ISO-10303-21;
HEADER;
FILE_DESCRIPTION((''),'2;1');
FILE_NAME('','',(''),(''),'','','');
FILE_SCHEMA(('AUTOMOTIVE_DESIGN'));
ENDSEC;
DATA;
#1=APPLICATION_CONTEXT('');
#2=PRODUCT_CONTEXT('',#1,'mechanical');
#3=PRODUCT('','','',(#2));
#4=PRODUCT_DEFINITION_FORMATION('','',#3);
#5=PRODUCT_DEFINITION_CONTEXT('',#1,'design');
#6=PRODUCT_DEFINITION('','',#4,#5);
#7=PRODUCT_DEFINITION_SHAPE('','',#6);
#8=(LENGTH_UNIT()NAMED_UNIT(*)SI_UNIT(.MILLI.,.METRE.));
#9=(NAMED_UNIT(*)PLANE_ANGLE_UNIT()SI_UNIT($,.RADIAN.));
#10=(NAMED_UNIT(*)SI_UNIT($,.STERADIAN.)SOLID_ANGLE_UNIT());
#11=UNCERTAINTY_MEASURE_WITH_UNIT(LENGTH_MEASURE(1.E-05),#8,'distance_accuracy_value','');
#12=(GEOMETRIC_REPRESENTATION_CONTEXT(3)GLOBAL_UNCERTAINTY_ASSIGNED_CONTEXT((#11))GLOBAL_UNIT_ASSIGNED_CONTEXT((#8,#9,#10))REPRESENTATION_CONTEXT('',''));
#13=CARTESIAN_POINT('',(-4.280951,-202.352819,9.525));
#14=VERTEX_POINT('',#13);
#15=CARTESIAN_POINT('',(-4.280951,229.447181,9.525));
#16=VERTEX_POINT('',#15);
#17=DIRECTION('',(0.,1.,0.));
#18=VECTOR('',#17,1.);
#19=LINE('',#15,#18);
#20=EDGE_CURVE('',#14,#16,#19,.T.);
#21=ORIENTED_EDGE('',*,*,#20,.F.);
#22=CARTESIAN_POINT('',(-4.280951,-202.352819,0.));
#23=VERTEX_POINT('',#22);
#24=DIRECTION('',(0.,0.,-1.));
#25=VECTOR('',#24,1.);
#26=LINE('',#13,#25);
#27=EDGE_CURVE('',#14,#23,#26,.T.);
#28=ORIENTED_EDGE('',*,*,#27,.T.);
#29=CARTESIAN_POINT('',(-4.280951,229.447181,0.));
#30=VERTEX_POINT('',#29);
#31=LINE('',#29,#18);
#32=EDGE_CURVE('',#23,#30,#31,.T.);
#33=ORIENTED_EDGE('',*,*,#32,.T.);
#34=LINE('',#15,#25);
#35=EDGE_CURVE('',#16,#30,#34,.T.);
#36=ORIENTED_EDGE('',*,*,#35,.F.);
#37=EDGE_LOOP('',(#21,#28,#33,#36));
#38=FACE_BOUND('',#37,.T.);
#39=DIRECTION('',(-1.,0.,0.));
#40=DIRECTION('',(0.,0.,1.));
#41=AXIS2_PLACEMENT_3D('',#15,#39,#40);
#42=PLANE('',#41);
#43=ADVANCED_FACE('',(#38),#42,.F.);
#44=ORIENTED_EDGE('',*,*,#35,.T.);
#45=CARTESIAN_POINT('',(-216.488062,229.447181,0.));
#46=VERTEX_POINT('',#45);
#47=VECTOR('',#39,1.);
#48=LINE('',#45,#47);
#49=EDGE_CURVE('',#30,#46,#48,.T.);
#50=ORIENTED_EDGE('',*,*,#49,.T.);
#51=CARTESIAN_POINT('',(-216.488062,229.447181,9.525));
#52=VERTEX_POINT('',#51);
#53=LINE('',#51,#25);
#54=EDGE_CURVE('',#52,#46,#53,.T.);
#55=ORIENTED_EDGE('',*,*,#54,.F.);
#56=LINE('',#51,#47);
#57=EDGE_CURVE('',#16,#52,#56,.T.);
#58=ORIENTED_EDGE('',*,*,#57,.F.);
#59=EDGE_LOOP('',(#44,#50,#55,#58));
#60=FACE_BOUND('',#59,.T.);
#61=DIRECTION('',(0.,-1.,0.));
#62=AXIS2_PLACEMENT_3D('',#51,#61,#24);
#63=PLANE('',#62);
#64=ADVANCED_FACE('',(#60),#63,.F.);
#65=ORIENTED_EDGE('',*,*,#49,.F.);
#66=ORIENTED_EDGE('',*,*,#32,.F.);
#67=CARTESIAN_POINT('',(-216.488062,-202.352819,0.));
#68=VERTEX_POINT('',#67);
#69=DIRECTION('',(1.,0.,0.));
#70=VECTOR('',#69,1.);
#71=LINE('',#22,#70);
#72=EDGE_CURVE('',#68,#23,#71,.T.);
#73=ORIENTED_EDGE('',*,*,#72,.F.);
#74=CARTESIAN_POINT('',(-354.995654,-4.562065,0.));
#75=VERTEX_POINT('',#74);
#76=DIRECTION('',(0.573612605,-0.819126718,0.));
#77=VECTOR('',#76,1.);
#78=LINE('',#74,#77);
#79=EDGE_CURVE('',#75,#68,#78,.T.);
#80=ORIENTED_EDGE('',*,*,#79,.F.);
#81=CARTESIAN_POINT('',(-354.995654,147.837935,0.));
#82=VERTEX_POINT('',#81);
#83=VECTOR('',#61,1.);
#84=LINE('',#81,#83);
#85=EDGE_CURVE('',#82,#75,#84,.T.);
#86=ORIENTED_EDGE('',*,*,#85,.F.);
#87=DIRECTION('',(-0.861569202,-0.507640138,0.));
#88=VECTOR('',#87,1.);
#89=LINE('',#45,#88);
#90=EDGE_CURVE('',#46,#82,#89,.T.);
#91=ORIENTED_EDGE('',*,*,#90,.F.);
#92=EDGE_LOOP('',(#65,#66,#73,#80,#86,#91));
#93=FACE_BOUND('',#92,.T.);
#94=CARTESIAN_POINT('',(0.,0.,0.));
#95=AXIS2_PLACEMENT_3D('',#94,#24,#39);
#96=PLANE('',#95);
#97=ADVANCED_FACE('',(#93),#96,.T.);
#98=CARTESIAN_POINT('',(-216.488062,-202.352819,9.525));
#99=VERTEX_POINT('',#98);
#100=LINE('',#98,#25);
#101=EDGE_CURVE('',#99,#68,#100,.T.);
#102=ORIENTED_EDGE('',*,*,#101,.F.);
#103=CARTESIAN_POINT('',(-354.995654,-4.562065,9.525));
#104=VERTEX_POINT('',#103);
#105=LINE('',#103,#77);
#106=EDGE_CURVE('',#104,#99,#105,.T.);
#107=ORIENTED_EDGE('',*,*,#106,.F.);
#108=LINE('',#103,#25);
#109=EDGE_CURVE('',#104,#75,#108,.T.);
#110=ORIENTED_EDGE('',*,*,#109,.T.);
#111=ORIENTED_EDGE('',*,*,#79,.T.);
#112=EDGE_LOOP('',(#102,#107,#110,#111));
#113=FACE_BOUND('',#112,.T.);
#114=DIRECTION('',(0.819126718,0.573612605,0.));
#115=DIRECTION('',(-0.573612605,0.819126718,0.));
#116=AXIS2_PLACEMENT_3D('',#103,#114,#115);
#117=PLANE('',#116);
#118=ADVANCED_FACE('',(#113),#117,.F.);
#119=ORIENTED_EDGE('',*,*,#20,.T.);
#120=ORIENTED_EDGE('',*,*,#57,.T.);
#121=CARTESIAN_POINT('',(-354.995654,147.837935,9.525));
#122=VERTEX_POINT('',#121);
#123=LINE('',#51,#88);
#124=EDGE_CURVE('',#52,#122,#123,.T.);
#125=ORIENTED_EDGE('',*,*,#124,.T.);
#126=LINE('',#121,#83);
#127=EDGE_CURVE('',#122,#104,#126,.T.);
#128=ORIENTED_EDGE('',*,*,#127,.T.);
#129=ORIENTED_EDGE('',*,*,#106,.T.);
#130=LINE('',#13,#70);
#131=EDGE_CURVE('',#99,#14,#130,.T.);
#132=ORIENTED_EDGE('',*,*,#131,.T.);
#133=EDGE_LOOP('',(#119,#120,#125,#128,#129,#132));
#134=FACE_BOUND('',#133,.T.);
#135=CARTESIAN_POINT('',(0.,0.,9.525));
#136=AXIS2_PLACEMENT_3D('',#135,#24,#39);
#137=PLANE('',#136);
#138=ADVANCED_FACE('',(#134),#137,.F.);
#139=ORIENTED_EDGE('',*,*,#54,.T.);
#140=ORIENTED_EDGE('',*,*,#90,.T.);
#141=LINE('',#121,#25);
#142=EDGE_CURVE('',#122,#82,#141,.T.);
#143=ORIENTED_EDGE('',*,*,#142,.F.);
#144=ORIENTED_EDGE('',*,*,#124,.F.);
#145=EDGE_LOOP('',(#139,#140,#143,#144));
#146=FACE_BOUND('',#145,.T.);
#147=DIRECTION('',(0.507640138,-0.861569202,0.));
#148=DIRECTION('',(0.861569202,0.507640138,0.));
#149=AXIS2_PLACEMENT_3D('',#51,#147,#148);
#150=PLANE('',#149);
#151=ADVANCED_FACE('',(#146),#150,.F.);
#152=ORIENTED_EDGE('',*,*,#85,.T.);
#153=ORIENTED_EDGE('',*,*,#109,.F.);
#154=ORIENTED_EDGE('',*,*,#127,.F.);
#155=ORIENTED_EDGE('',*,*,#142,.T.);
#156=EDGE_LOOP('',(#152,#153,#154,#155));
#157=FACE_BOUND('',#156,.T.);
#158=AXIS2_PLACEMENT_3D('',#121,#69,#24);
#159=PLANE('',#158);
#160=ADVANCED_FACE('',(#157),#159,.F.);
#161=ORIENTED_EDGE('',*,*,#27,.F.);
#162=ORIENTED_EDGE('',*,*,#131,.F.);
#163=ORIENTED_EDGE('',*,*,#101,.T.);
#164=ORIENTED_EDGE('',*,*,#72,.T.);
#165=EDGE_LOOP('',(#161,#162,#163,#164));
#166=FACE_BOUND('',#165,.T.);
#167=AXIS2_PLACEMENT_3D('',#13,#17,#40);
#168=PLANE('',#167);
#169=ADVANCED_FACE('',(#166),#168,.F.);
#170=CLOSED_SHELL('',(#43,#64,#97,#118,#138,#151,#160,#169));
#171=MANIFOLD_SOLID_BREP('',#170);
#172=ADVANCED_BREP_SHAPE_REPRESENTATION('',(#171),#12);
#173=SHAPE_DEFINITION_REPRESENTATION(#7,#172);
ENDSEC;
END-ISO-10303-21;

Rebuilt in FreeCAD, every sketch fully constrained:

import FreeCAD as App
import Part
import Sketcher
Q = App.Units.Quantity

doc = App.newDocument("Part")
body = doc.addObject("PartDesign::Body", "Body")

sketch1 = body.newObject("Sketcher::SketchObject", "Sketch")
sketch1.AttachmentSupport = (doc.getObject("XY_Plane"), [""])
sketch1.MapMode = "FlatFace"
sketch1.addGeometry([
    Part.LineSegment(App.Vector(-216.488062, -202.352819, 0), App.Vector(-4.280951, -202.352819, 0)),
    Part.LineSegment(App.Vector(-4.280951, -202.352819, 0), App.Vector(-4.280951, 229.447181, 0)),
    Part.LineSegment(App.Vector(-4.280951, 229.447181, 0), App.Vector(-216.488062, 229.447181, 0)),
    Part.LineSegment(App.Vector(-216.488062, 229.447181, 0), App.Vector(-354.995654, 147.837935, 0)),
    Part.LineSegment(App.Vector(-354.995654, 147.837935, 0), App.Vector(-354.995654, -4.562065, 0)),
    Part.LineSegment(App.Vector(-354.995654, -4.562065, 0), App.Vector(-216.488062, -202.352819, 0)),
], False)
sketch1.addConstraint([
    Sketcher.Constraint("Coincident", 0, 2, 1, 1),
    Sketcher.Constraint("Coincident", 1, 2, 2, 1),
    Sketcher.Constraint("Coincident", 2, 2, 3, 1),
    Sketcher.Constraint("Coincident", 3, 2, 4, 1),
    Sketcher.Constraint("Coincident", 4, 2, 5, 1),
    Sketcher.Constraint("Coincident", 5, 2, 0, 1),
    Sketcher.Constraint("Horizontal", 0),
    Sketcher.Constraint("Vertical", 1),
    Sketcher.Constraint("Horizontal", 2),
    Sketcher.Constraint("Vertical", 4),
    Sketcher.Constraint("Vertical", 2, 2, 5, 2),
    Sketcher.Constraint("DistanceY", 1, 1, 1, 2, Q("17 in")),
    Sketcher.Constraint("DistanceY", 4, 2, 4, 1, Q("6 in")),
    Sketcher.Constraint("DistanceX", 0, 1, 0, 2, 212.207111),
    Sketcher.Constraint("Distance", 5, 241.465392),
    Sketcher.Constraint("DistanceX", 0, 2, -1, 1, 4.280951),
    Sketcher.Constraint("DistanceY", 0, 2, -1, 1, 202.352819),
    Sketcher.Constraint("Distance", 3, 160.762005),
])
pad1 = body.newObject("PartDesign::Pad", "Pad")
pad1.Profile = sketch1
pad1.Length = Q("0.375 in")

doc.recompute()
